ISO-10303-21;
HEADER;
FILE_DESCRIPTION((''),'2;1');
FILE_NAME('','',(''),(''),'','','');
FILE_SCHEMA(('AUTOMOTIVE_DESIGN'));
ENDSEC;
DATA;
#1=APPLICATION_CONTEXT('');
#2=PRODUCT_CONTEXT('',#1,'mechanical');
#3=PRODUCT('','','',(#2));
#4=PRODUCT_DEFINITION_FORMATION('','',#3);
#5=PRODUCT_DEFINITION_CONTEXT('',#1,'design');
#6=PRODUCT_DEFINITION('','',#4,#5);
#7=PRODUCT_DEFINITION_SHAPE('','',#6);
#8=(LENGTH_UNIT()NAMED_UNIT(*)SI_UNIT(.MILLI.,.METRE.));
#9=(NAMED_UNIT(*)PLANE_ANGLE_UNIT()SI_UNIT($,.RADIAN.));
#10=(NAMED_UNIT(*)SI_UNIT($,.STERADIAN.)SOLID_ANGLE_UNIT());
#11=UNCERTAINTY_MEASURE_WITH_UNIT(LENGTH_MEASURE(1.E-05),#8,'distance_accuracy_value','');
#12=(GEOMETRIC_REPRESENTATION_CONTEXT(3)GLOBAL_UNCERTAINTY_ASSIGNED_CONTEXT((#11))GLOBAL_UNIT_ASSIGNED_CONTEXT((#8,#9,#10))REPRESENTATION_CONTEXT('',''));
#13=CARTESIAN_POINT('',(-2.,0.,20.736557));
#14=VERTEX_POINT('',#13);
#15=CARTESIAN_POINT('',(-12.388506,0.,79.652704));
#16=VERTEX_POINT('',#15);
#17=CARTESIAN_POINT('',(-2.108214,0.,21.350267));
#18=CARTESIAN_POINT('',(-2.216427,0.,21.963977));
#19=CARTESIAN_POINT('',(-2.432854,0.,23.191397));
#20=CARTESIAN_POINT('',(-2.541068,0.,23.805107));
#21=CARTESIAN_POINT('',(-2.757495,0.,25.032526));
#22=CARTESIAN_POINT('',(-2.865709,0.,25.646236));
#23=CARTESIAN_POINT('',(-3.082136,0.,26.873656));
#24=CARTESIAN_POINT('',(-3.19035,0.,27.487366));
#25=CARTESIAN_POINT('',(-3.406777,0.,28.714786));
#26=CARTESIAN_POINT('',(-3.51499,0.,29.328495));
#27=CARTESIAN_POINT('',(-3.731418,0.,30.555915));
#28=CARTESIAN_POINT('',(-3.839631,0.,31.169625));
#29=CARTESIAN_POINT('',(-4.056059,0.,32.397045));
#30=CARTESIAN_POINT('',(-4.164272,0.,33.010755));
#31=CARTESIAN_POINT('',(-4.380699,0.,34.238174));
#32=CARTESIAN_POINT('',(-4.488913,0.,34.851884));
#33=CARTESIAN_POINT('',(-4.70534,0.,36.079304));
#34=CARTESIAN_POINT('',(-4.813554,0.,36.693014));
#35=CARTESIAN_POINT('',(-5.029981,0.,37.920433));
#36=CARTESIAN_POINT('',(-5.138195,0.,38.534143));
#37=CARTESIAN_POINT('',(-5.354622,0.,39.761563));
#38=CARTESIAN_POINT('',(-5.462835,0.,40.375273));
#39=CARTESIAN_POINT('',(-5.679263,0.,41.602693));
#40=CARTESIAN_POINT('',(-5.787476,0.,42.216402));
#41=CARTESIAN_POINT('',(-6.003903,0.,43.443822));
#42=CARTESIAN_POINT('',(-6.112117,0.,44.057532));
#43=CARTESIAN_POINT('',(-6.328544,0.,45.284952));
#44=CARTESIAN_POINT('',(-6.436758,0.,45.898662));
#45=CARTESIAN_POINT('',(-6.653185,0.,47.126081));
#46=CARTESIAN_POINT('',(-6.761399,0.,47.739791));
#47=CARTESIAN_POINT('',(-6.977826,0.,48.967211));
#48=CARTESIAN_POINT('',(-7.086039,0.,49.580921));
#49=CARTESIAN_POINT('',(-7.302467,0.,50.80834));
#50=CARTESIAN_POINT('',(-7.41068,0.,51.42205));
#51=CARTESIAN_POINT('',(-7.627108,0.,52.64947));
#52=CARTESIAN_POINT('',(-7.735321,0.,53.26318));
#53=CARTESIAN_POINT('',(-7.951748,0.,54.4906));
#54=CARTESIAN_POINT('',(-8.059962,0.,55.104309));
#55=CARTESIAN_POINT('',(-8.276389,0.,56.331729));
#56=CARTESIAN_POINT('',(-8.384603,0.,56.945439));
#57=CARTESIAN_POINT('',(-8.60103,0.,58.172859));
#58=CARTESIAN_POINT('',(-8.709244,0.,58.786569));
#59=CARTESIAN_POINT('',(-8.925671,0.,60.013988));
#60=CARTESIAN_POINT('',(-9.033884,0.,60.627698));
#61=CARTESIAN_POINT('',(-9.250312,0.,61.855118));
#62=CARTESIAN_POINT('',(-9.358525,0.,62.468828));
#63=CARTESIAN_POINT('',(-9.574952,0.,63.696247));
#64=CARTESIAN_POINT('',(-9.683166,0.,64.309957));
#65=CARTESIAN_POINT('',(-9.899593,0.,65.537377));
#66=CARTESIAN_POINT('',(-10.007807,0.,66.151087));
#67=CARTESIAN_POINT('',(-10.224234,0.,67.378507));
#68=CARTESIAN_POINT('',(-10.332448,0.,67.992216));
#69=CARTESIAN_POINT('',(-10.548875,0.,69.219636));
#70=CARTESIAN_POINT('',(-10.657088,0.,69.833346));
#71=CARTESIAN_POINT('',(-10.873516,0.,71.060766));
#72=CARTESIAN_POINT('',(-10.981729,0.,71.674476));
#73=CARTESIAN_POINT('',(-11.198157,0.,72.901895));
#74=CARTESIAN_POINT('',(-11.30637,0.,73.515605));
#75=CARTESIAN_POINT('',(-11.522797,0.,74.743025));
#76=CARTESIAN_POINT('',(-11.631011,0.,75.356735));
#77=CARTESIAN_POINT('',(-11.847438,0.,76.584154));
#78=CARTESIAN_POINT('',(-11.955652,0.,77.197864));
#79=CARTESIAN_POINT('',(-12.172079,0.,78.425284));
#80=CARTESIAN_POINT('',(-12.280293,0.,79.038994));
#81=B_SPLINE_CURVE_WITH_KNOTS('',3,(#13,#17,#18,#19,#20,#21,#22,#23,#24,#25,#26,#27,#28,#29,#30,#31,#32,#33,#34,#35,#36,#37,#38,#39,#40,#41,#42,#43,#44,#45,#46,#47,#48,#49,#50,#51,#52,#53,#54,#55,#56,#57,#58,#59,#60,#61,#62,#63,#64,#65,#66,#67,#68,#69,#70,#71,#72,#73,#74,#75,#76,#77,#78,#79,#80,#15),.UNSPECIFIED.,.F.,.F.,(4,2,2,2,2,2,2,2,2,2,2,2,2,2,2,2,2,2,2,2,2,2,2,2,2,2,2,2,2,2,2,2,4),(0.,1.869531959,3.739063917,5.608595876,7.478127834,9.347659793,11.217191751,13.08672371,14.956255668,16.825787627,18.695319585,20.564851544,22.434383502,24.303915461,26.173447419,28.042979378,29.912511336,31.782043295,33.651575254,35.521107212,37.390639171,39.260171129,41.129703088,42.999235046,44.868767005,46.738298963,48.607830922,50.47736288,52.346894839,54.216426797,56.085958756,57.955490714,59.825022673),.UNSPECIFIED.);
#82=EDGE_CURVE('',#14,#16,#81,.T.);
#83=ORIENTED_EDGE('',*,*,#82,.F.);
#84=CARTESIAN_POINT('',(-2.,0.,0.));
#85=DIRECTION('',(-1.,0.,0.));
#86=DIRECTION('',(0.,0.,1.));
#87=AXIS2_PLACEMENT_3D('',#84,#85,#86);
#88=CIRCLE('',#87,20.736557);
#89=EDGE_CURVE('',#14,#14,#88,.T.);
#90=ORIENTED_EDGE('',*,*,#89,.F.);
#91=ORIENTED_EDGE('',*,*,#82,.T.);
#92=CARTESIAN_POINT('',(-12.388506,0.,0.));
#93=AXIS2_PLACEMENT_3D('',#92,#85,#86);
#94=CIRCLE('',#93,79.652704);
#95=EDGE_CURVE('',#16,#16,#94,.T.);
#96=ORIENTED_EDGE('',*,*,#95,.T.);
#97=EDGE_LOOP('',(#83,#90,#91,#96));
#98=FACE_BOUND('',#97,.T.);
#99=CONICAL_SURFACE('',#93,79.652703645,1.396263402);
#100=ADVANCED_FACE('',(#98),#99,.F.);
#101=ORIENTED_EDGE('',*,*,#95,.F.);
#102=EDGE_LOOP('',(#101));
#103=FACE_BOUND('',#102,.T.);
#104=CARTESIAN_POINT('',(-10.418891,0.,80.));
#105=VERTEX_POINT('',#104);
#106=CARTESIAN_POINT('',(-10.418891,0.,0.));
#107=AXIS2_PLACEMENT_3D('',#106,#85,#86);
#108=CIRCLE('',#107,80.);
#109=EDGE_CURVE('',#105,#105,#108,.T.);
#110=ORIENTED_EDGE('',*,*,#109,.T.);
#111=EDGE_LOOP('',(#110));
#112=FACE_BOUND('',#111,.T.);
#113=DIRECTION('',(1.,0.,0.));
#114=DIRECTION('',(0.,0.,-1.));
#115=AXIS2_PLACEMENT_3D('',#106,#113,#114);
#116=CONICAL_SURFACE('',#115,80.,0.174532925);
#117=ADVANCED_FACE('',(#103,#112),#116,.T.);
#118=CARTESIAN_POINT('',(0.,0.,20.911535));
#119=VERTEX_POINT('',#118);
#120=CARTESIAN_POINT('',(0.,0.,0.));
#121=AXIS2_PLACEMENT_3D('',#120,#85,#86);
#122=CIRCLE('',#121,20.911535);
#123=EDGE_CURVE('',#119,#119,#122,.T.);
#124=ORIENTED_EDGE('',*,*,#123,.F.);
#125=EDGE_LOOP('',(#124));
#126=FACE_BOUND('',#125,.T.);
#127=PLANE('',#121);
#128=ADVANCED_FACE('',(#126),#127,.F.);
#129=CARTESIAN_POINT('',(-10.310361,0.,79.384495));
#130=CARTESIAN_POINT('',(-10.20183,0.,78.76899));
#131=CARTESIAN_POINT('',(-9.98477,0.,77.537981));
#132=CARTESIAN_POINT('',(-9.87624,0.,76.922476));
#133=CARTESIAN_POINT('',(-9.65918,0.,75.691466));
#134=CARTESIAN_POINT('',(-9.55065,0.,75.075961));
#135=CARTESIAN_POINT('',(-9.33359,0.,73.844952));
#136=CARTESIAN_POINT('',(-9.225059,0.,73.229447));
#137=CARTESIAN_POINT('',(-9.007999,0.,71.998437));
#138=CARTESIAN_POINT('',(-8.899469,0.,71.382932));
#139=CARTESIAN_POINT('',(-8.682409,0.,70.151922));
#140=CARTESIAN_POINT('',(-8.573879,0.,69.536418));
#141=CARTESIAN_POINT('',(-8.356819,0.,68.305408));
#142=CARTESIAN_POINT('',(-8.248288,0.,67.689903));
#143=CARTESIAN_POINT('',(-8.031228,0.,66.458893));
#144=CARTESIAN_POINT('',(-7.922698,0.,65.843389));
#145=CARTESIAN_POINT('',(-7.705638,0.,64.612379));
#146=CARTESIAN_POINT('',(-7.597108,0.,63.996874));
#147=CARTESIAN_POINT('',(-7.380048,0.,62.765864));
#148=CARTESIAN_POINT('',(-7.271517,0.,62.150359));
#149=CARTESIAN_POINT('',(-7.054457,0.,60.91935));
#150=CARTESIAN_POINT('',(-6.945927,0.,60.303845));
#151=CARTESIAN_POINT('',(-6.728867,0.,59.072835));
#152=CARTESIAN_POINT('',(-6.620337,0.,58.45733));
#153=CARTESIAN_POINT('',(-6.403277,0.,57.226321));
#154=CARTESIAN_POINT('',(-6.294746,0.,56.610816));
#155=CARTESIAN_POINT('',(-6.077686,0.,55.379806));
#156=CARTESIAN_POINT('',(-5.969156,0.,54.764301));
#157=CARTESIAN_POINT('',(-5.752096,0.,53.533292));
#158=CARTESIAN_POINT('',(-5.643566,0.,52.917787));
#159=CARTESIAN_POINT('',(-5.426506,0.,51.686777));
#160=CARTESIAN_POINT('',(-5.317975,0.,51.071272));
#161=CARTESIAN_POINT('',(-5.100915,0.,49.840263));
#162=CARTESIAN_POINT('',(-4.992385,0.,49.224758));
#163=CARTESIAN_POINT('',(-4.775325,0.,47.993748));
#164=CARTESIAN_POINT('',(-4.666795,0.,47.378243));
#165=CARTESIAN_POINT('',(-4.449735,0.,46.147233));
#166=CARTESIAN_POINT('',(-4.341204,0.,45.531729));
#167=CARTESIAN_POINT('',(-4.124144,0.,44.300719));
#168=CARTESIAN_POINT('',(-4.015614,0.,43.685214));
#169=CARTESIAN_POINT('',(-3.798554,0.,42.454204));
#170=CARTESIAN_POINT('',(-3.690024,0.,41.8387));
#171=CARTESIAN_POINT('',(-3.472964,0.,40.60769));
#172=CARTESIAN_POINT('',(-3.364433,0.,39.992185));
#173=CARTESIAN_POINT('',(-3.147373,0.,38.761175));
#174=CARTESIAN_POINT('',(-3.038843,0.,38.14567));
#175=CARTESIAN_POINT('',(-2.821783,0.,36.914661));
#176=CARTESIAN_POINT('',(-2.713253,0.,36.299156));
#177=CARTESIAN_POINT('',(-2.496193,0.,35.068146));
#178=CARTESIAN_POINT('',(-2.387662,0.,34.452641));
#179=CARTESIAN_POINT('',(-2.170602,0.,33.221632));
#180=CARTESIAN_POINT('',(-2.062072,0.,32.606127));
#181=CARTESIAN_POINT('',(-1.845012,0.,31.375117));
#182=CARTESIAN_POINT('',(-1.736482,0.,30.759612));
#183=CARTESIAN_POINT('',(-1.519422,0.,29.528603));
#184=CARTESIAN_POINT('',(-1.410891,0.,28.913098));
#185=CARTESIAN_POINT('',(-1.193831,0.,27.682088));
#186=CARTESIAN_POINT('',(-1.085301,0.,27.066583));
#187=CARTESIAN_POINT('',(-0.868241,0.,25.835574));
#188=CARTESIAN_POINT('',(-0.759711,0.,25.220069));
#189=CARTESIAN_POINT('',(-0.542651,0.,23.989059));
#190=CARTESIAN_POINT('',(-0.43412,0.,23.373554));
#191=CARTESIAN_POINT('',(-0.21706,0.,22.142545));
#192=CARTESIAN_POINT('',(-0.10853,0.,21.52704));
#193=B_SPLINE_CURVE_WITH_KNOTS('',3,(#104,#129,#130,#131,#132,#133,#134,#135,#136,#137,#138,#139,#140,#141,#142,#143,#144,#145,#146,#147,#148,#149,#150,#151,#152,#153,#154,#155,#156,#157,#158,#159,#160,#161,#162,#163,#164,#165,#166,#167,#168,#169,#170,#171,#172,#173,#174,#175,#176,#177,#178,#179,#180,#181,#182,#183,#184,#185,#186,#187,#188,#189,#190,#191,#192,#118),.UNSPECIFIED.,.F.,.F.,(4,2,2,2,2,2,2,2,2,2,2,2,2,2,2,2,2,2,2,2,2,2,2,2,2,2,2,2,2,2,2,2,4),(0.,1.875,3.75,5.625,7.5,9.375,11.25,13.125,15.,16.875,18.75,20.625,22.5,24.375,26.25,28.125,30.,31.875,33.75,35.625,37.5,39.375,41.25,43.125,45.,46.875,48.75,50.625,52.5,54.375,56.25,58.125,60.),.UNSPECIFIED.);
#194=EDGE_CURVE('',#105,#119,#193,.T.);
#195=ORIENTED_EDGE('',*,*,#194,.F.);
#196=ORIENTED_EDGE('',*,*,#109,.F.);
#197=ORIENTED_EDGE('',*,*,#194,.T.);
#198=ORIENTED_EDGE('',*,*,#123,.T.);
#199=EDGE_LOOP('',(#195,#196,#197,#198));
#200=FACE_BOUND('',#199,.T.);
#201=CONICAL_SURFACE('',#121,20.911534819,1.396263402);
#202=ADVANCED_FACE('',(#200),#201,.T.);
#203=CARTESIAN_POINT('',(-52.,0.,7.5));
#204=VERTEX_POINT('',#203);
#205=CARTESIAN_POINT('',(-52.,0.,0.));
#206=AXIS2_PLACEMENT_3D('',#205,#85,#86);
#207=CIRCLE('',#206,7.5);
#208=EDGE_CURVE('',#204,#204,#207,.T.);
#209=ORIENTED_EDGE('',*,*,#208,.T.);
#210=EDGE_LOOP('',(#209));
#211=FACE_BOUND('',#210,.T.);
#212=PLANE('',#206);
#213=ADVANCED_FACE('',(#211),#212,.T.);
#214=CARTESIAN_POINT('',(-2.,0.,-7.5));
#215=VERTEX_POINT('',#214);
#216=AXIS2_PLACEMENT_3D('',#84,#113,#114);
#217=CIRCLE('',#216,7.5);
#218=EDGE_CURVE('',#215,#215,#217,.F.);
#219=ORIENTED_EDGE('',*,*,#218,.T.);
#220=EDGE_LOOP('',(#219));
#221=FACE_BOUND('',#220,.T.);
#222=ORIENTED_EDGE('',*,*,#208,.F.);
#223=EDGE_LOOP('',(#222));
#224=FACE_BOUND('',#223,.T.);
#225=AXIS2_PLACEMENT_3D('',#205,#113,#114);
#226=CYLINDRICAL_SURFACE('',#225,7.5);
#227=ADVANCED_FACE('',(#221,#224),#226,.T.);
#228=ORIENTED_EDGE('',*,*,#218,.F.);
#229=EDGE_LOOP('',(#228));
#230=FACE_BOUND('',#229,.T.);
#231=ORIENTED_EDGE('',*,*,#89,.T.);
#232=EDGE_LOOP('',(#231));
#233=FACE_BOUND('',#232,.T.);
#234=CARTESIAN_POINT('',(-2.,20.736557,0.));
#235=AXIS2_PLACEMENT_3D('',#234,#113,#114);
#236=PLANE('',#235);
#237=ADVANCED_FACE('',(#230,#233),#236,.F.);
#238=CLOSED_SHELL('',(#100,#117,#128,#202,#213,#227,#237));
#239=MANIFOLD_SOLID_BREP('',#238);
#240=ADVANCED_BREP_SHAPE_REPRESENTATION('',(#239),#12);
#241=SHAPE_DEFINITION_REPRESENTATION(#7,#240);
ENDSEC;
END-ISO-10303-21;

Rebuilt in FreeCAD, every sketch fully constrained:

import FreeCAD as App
import Part
import Sketcher
from FreeCAD import Vector
Q = App.Units.Quantity

doc = App.newDocument("Part")
body = doc.addObject("PartDesign::Body", "Body")

# Sketch on XY plane
sketch1 = body.newObject("Sketcher::SketchObject", "Sketch")
sketch1.AttachmentSupport = (doc.getObject("XY_Plane"), [""])
sketch1.MapMode = "FlatFace"
sketch1.addGeometry([
    Part.LineSegment(Vector(0, 0, 0), Vector(0, 20.9, 0)),  # 0
    Part.LineSegment(Vector(0, 20.9, 0), Vector(-10.4, 80, 0)),  # 1
    Part.LineSegment(Vector(-10.4, 80, 0), Vector(-12.4, 79.7, 0)),  # 2
    Part.LineSegment(Vector(-12.4, 79.7, 0), Vector(-2, 20.7, 0)),  # 3
    Part.LineSegment(Vector(-2, 20.7, 0), Vector(-2, 0, 0)),  # 4
    Part.LineSegment(Vector(-2, 0, 0), Vector(0, 0, 0)),  # 5
], False)
sketch1.addConstraint([
    Sketcher.Constraint("Coincident", 0, 2, 1, 1),
    Sketcher.Constraint("Coincident", 1, 2, 2, 1),
    Sketcher.Constraint("Coincident", 2, 2, 3, 1),
    Sketcher.Constraint("Coincident", 3, 2, 4, 1),
    Sketcher.Constraint("Coincident", 4, 2, 5, 1),
    Sketcher.Constraint("Coincident", 5, 2, 0, 1),
    Sketcher.Constraint("Vertical", 0),
    Sketcher.Constraint("Vertical", 4),
    Sketcher.Constraint("Horizontal", 5),
    Sketcher.Constraint("Coincident", 5, 2, -1, 1),
    Sketcher.Constraint("Perpendicular", 1, 2),
    Sketcher.Constraint("Perpendicular", 2, 3),
    Sketcher.Constraint("DistanceX", 5, 1, 5, 2, Q("2 mm")),
    Sketcher.Constraint("Angle", 1, Q("100 deg")),
    Sketcher.Constraint("Distance", 1, Q("60 mm")),
    Sketcher.Constraint("Distance", 2, Q("2 mm")),
    Sketcher.Constraint("DistanceY", -1, 1, 1, 2, Q("80 mm")),
])
revolution = body.newObject("PartDesign::Revolution", "Revolution")
revolution.Profile = sketch1
revolution.ReferenceAxis = (sketch1, ["H_Axis"])
revolution.Angle = 360

# Sketch on YZ plane
sketch2 = body.newObject("Sketcher::SketchObject", "Sketch001")
sketch2.AttachmentSupport = (doc.getObject("YZ_Plane"), [""])
sketch2.MapMode = "FlatFace"
sketch2.AttachmentOffset = App.Placement(Vector(0, 0, -2), App.Rotation())
sketch2.addGeometry(Part.Circle(Vector(0, 0, 0), Vector(0, 0, 1), 8), False)
sketch2.addConstraint([
    Sketcher.Constraint("Coincident", 0, 3, -1, 1),
    Sketcher.Constraint("Diameter", 0, Q("15 mm")),
])
pad1 = body.newObject("PartDesign::Pad", "Pad")
pad1.Profile = sketch2
pad1.Length = 50
pad1.Reversed = True

doc.recompute()
